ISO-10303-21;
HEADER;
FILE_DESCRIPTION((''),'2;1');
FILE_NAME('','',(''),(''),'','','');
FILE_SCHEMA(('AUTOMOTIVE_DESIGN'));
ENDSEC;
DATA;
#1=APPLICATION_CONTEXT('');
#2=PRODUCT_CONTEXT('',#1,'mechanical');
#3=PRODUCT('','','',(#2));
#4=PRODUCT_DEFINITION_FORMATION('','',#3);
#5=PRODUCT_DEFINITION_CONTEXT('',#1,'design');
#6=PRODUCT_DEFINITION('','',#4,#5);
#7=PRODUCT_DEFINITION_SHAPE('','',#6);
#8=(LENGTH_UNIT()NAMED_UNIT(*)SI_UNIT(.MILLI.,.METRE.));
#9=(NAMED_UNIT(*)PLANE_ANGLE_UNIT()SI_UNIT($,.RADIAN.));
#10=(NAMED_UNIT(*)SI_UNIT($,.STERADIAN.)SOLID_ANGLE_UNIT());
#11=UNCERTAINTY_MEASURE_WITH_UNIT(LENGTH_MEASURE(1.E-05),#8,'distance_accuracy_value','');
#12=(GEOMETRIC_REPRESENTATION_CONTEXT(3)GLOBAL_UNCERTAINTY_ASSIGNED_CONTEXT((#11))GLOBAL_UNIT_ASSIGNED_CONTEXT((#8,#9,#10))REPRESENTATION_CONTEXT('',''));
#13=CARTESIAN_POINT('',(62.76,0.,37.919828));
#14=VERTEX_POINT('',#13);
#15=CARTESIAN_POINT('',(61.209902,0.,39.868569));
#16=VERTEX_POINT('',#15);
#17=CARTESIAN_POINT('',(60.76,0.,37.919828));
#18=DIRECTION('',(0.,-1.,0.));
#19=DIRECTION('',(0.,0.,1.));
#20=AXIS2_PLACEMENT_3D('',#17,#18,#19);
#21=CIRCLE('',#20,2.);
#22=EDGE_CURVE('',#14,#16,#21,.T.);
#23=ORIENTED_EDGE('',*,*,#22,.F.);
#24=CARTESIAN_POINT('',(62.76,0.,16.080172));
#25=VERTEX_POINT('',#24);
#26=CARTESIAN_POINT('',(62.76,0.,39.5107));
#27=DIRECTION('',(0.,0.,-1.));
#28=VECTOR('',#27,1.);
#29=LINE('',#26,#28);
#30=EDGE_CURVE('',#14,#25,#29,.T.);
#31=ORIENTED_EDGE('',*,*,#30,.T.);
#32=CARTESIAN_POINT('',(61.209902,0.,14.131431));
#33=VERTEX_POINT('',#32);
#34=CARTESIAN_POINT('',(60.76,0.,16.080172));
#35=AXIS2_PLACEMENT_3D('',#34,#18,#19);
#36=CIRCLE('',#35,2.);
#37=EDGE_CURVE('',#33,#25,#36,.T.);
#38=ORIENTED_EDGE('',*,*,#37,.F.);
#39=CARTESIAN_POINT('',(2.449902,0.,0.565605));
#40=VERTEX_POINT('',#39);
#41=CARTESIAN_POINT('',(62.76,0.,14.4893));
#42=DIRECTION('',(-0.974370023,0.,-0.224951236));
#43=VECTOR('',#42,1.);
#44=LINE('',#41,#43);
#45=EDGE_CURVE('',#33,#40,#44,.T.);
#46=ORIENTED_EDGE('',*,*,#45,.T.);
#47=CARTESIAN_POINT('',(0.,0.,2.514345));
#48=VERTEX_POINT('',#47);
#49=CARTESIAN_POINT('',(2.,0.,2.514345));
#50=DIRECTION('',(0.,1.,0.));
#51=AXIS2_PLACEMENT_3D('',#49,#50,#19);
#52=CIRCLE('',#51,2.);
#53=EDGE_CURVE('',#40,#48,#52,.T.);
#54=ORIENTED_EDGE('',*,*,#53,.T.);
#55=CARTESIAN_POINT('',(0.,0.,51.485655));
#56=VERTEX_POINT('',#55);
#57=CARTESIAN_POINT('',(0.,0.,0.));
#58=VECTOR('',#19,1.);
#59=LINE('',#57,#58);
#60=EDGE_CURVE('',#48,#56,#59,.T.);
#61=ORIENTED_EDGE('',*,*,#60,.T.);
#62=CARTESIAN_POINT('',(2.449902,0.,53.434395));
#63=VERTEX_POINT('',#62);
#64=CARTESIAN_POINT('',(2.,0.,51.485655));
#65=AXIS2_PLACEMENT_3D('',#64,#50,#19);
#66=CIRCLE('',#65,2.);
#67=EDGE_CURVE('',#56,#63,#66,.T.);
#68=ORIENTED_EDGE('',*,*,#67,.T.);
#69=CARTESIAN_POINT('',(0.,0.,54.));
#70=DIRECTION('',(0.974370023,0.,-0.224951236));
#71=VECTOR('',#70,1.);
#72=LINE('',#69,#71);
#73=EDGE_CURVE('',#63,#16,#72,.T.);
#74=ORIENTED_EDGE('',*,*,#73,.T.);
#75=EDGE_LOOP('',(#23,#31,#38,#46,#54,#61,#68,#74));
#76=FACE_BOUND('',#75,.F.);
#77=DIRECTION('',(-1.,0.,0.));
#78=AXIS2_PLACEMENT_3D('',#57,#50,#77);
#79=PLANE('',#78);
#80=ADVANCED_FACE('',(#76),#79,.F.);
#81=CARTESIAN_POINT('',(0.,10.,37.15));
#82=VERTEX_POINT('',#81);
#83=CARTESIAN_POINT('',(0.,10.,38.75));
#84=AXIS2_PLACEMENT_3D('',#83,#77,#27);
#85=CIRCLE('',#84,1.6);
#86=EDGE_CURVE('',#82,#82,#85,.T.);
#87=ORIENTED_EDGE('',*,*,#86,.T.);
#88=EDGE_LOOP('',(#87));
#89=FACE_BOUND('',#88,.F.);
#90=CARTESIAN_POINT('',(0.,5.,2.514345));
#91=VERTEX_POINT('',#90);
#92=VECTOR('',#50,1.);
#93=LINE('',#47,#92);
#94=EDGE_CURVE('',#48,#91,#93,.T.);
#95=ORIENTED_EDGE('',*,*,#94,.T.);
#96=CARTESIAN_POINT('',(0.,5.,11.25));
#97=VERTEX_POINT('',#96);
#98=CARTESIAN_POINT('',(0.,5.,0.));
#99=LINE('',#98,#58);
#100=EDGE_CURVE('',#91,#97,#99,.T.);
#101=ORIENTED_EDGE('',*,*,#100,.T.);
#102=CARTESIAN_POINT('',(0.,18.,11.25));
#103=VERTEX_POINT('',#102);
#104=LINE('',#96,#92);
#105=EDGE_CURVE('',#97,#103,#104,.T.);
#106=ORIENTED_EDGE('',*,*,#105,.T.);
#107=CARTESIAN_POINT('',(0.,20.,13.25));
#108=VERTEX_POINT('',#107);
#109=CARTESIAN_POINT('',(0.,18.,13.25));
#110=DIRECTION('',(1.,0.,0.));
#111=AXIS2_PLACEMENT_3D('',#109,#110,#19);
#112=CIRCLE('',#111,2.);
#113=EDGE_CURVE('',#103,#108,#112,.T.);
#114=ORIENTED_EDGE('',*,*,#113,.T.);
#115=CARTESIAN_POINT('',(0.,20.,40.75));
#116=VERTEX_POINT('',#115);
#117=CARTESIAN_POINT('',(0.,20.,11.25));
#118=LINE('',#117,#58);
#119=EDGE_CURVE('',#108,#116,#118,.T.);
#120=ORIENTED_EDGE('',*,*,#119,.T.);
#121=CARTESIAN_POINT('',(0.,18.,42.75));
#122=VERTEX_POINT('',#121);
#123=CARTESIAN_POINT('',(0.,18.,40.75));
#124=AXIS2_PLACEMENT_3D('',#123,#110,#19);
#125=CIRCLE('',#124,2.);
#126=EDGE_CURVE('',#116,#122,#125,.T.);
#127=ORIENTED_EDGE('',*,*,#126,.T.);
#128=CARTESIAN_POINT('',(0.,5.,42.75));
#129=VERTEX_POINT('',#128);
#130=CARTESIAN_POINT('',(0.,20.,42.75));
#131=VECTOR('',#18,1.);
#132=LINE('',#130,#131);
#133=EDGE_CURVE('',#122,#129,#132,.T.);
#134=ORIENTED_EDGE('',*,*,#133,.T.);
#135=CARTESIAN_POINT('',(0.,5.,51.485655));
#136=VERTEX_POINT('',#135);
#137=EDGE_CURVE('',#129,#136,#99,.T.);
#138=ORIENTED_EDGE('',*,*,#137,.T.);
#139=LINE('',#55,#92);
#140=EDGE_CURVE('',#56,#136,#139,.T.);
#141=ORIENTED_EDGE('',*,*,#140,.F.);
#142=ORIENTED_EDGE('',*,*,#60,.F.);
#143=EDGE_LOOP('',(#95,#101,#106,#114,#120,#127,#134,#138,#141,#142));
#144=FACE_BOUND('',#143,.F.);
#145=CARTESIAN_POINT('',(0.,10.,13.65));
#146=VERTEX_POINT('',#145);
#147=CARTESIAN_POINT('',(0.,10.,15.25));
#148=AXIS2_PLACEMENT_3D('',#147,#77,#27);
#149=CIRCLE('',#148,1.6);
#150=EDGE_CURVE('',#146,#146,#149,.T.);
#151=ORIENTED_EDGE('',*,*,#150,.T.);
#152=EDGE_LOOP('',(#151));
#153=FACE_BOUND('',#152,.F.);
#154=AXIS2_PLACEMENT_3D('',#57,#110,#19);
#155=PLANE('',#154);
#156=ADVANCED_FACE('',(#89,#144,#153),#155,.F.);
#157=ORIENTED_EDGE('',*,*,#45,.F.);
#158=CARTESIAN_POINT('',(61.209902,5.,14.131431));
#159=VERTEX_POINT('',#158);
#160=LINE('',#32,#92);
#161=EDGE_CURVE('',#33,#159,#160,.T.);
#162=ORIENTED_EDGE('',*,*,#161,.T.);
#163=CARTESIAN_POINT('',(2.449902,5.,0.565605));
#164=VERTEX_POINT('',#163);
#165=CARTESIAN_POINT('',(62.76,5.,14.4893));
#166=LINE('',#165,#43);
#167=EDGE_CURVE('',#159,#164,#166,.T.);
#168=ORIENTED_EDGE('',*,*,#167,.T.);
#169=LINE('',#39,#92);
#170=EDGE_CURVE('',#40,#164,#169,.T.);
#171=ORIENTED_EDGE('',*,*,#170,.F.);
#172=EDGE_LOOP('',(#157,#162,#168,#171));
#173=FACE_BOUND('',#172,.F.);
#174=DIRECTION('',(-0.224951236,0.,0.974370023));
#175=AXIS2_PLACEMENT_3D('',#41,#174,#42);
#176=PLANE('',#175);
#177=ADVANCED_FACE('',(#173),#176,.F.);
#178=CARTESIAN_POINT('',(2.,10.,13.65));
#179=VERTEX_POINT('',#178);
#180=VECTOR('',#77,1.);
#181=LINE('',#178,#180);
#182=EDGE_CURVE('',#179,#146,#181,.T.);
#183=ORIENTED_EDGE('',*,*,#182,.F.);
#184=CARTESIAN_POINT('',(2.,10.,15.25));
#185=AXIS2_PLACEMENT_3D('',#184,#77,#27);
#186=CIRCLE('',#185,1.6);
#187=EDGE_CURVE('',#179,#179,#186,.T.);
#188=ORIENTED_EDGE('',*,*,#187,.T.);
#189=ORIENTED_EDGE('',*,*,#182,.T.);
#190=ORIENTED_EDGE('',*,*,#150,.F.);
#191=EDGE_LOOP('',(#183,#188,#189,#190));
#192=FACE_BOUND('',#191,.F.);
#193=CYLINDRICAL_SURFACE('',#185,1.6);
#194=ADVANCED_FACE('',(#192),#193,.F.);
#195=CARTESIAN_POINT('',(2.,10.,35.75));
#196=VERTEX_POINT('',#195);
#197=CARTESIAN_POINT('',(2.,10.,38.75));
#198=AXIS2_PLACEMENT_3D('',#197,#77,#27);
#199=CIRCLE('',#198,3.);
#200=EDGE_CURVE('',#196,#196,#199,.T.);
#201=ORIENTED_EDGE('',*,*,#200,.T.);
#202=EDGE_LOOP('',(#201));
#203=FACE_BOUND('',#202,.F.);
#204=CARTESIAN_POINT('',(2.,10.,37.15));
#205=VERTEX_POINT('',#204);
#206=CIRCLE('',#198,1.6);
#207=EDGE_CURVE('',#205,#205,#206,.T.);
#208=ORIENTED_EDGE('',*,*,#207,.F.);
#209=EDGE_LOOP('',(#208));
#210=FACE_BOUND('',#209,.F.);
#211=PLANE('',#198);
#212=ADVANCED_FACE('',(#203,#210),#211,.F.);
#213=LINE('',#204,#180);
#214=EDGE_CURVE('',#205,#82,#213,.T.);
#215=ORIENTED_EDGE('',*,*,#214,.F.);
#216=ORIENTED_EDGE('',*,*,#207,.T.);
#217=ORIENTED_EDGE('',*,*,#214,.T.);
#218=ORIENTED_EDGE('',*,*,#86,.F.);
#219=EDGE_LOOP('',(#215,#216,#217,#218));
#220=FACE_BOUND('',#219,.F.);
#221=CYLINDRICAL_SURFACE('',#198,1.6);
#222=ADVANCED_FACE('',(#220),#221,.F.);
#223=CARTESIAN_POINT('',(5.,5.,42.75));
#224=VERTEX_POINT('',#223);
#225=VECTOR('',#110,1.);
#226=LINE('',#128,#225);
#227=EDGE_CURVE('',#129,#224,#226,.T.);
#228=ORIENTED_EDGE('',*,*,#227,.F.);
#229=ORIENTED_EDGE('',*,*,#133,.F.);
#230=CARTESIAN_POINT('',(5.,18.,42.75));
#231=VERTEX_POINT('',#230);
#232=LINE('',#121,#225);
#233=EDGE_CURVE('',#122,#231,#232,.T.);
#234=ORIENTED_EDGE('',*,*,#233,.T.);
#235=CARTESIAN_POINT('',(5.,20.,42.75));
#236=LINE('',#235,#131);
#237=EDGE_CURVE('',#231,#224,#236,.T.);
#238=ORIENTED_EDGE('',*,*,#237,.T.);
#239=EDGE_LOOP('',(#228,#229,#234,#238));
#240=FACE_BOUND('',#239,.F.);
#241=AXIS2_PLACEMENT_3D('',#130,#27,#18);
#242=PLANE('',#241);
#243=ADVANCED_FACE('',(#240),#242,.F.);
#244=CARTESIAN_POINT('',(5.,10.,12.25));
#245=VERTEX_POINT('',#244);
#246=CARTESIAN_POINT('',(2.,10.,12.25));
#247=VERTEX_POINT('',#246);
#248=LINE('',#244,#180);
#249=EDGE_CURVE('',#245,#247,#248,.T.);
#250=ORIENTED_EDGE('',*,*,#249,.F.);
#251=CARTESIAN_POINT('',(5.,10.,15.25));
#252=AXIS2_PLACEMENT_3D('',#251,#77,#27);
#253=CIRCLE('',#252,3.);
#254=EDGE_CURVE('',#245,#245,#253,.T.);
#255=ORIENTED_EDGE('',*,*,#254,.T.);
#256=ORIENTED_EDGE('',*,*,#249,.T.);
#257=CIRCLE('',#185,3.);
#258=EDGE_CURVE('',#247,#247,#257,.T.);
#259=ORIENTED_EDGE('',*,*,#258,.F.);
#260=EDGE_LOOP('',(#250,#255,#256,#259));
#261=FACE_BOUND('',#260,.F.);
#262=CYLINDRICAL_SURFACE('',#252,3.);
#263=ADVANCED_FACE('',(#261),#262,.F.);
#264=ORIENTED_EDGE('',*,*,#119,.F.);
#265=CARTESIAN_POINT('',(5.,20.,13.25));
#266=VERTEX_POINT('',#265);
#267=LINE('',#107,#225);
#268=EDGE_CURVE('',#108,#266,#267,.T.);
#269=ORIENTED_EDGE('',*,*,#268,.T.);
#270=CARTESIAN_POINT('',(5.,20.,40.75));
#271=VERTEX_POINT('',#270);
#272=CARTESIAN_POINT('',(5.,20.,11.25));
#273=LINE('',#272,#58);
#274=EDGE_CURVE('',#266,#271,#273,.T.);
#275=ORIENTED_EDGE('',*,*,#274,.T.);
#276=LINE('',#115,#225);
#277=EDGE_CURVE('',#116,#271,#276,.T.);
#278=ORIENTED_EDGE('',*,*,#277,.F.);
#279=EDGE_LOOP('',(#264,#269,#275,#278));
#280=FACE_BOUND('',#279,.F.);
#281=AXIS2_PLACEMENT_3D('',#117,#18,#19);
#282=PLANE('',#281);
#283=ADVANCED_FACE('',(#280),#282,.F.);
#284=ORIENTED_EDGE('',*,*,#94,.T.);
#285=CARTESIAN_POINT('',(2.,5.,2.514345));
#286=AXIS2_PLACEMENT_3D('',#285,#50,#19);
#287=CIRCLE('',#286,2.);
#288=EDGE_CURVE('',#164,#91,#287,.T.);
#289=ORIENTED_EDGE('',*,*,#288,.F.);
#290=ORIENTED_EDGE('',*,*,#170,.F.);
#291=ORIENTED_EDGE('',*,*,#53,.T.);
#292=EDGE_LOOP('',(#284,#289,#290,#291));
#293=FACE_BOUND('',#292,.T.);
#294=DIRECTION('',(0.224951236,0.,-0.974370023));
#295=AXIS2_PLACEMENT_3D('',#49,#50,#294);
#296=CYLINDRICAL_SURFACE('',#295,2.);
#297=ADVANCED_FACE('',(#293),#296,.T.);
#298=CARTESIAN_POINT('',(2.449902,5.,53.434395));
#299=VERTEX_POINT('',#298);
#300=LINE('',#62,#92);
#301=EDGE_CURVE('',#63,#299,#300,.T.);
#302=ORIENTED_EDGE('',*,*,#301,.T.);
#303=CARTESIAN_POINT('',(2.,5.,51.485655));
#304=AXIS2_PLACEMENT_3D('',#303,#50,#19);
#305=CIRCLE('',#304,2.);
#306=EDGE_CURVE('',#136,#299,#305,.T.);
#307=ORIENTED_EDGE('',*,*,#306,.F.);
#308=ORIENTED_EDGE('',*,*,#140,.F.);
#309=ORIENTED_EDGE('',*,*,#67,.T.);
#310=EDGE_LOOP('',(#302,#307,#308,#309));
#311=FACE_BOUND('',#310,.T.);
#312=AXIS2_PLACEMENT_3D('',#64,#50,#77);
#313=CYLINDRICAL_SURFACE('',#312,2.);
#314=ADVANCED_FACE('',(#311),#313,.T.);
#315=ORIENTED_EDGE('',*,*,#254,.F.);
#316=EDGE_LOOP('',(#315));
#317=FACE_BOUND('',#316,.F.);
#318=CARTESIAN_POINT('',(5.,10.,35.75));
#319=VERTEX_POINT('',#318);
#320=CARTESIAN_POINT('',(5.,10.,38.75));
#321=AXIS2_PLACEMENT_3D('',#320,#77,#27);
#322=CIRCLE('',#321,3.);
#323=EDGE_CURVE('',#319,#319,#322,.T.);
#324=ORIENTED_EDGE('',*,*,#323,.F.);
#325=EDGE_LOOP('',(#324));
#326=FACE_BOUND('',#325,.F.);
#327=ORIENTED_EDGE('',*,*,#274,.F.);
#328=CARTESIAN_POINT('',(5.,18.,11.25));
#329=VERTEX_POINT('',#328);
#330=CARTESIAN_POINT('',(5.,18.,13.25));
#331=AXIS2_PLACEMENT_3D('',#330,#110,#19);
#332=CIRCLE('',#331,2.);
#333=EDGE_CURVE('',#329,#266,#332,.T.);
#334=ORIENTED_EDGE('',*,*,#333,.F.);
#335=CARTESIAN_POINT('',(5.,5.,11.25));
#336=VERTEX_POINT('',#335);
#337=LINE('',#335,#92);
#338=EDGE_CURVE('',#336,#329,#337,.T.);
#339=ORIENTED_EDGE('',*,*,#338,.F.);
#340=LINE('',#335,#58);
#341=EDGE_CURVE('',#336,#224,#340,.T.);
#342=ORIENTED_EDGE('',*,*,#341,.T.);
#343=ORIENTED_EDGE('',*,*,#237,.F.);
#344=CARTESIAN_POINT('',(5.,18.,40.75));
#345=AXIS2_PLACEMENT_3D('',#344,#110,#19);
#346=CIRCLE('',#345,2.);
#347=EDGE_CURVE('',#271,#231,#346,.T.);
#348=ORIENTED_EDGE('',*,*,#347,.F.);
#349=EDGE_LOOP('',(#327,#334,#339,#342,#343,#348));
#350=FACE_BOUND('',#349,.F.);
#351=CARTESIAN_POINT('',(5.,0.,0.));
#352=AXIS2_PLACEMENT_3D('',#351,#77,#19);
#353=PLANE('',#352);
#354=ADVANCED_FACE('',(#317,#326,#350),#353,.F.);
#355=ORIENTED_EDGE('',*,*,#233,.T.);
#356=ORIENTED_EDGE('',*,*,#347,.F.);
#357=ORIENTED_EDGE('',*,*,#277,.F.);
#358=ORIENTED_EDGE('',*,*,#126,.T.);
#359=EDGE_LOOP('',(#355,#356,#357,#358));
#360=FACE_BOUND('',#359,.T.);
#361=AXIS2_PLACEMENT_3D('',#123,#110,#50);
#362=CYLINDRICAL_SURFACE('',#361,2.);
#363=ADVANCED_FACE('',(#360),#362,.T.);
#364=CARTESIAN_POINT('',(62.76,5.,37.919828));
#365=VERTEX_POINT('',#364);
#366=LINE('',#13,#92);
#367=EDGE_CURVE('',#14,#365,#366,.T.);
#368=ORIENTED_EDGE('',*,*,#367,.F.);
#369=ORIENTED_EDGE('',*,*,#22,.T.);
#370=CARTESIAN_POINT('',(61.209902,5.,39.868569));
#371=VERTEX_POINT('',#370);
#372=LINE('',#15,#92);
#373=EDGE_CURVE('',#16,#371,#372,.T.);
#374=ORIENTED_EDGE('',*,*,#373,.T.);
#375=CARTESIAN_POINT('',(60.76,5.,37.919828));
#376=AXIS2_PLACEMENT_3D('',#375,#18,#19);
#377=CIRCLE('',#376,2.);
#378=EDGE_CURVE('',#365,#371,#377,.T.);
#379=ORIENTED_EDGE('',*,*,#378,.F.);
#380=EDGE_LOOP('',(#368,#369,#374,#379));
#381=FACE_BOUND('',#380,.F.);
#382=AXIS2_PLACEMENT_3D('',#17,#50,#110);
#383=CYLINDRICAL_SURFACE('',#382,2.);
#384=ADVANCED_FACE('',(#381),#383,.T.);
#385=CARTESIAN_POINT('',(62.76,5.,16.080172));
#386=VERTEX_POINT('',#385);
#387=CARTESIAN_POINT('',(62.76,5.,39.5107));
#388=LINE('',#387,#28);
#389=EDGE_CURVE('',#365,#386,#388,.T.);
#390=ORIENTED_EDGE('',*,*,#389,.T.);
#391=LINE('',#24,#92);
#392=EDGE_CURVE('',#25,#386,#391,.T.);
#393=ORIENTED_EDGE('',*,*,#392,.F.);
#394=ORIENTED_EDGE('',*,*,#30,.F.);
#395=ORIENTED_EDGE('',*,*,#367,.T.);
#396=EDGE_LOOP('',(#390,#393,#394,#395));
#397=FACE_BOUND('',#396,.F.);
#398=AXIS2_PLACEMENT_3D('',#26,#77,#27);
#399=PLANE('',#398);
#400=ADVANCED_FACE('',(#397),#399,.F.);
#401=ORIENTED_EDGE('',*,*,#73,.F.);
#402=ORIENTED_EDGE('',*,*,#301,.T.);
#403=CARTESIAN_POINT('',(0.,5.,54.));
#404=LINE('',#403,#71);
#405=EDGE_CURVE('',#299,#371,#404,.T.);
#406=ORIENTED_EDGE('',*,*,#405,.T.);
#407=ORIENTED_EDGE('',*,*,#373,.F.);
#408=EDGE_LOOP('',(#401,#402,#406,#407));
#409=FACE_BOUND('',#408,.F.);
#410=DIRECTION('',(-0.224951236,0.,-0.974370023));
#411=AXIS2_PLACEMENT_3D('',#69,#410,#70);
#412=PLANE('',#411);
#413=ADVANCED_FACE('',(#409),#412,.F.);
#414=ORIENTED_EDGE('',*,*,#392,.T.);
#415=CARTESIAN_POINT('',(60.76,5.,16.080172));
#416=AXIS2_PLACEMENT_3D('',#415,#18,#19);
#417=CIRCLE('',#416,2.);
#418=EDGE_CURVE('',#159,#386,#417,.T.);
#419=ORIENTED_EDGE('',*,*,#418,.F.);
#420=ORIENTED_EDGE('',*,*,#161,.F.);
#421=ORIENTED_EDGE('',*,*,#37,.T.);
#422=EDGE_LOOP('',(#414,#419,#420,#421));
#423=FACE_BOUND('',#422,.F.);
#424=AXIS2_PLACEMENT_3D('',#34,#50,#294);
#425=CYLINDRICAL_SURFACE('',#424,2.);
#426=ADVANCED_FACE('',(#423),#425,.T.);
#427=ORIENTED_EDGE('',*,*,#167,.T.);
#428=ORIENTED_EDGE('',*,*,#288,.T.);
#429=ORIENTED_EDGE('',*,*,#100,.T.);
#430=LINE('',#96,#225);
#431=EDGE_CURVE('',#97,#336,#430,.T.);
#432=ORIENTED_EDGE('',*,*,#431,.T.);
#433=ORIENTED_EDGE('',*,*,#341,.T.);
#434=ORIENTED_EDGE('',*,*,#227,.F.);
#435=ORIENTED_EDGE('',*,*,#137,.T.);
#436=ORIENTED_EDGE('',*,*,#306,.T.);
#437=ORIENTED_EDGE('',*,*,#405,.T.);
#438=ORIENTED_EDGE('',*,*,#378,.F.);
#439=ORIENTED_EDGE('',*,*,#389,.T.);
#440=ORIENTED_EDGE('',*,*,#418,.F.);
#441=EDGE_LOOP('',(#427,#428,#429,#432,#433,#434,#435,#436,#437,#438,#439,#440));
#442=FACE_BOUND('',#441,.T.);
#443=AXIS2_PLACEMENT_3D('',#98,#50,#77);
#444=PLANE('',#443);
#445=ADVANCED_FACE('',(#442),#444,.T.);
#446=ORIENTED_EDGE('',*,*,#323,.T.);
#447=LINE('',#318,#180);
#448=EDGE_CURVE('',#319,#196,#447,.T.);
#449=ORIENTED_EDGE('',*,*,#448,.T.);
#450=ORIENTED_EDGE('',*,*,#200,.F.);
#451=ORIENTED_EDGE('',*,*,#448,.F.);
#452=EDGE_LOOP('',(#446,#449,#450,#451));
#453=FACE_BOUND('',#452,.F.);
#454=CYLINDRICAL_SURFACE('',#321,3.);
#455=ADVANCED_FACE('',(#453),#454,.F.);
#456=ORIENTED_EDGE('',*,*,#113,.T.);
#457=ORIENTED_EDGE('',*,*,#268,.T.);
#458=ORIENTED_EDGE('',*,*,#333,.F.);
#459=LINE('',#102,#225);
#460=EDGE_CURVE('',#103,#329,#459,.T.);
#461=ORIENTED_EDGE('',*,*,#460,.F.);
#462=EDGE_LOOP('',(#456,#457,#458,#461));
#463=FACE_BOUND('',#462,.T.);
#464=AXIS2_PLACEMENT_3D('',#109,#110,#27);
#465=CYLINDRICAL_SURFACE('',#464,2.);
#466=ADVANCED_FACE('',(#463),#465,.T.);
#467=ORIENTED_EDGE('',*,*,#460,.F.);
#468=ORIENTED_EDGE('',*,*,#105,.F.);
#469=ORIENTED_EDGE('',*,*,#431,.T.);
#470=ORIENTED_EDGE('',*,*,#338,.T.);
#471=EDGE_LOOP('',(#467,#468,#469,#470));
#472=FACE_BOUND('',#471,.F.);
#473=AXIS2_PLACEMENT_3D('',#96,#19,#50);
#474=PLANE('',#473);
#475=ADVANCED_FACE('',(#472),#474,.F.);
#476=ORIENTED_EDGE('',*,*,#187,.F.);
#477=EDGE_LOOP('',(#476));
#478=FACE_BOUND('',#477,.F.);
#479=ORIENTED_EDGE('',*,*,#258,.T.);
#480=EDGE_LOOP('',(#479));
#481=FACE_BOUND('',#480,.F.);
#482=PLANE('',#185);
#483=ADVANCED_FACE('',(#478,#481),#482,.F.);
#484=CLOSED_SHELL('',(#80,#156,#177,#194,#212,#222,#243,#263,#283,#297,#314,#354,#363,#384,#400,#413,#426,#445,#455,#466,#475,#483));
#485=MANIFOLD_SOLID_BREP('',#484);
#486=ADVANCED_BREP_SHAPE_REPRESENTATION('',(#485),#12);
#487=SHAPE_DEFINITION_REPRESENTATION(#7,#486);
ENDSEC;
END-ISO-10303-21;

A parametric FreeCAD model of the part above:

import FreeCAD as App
import Part
import Sketcher

V = App.Vector
Q = App.Units.Quantity


def edges_at(feature, points):
    """Names of the edges that pass closest to the given points."""
    edges = feature.Shape.Edges
    near = lambda p: min(range(len(edges)), key=lambda i: edges[i].distToShape(Part.Vertex(*p))[0])
    return sorted({f"Edge{near(p) + 1}" for p in points})

doc = App.newDocument("Part")
body = doc.addObject("PartDesign::Body", "Body")

sketch1 = body.newObject("Sketcher::SketchObject", "Sketch")
sketch1.AttachmentSupport = (doc.getObject("XZ_Plane"), [""])
sketch1.MapMode = "FlatFace"
sketch1.addGeometry([
    Part.LineSegment(V(63, 14, 0), V(0, 0, 0)),
    Part.LineSegment(V(0, 0, 0), V(0, 54, 0)),
    Part.LineSegment(V(0, 54, 0), V(63, 40, 0)),
    Part.LineSegment(V(63, 40, 0), V(63, 14, 0)),
], False)
sketch1.addConstraint([
    Sketcher.Constraint("Coincident", 0, 2, 1, 1),
    Sketcher.Constraint("Coincident", 1, 2, 2, 1),
    Sketcher.Constraint("Coincident", 2, 2, 3, 1),
    Sketcher.Constraint("Coincident", 3, 2, 0, 1),
    Sketcher.Constraint("Vertical", 1),
    Sketcher.Constraint("Vertical", 3),
    Sketcher.Constraint("Coincident", 0, 2, -1, 1),
    Sketcher.Constraint("Equal", 0, 2),
    Sketcher.Constraint("DistanceY", 1, 1, 1, 2, Q("54 mm")),
    Sketcher.Constraint("DistanceX", -1, 1, 2, 2, Q("62.76 mm")),
    Sketcher.Constraint("Angle", 0, Q("-167 deg")),
])
pad1 = body.newObject("PartDesign::Pad", "Pad")
pad1.Profile = sketch1
pad1.Length = 5
pad1.Reversed = True

sketch2 = body.newObject("Sketcher::SketchObject", "Sketch001")
sketch2.AttachmentSupport = (doc.getObject("YZ_Plane"), [""])
sketch2.MapMode = "FlatFace"
sketch2.addGeometry([
    Part.LineSegment(V(5, 11, 0), V(5, 43, 0)),
    Part.LineSegment(V(5, 43, 0), V(20, 43, 0)),
    Part.LineSegment(V(20, 43, 0), V(20, 11, 0)),
    Part.LineSegment(V(20, 11, 0), V(5, 11, 0)),
], False)
sketch2.addConstraint([
    Sketcher.Constraint("Coincident", 0, 2, 1, 1),
    Sketcher.Constraint("Coincident", 1, 2, 2, 1),
    Sketcher.Constraint("Coincident", 2, 2, 3, 1),
    Sketcher.Constraint("Coincident", 3, 2, 0, 1),
    Sketcher.Constraint("Vertical", 0),
    Sketcher.Constraint("Horizontal", 1),
    Sketcher.Constraint("Vertical", 2),
    Sketcher.Constraint("Horizontal", 3),
    Sketcher.Constraint("DistanceX", 1, 1, 1, 2, Q("15 mm")),
    Sketcher.Constraint("DistanceY", 0, 1, 0, 2, Q("31.5 mm")),
    Sketcher.Constraint("DistanceY", -1, 1, 2, 2, Q("11.25 mm")),
    Sketcher.Constraint("DistanceX", -1, 1, 0, 2, Q("5 mm")),
])
pad2 = body.newObject("PartDesign::Pad", "Pad001")
pad2.Profile = sketch2
pad2.Length = 5

sketch3 = body.newObject("Sketcher::SketchObject", "Sketch002")
sketch3.AttachmentSupport = (doc.getObject("YZ_Plane"), [""])
sketch3.MapMode = "FlatFace"
sketch3.AttachmentOffset = App.Placement(V(0, 0, 5), App.Rotation())
sketch3.addGeometry([
    Part.Circle(V(10, 38.8, 0), V(0, 0, 1), 1.6),
    Part.Circle(V(10, 15.2, 0), V(0, 0, 1), 1.6),
], False)
sketch3.addConstraint([
    Sketcher.Constraint("Equal", 0, 1),
    Sketcher.Constraint("Vertical", 0, 3, 1, 3),
    Sketcher.Constraint("Diameter", 0, Q("3.2 mm")),
    Sketcher.Constraint("DistanceX", -1, 1, 0, 3, Q("10 mm")),
    Sketcher.Constraint("DistanceY", 1, 3, 0, 3, Q("23.5 mm")),
    Sketcher.Constraint("DistanceY", -1, 1, 0, 3, Q("38.75 mm")),
])
doc.recompute()
hole = body.newObject("PartDesign::Hole", "Hole")
hole.Profile = sketch3
hole.ThreadType = "None"
hole.Diameter = 3.2
hole.DepthType = "Dimension"
hole.Depth = 8
hole.DrillPoint = "Angled"
hole.DrillPointAngle = 118
hole.HoleCutType = "Counterbore"
hole.HoleCutDiameter = 6
hole.HoleCutDepth = 3
doc.recompute()

fillet = body.newObject("PartDesign::Fillet", "Fillet")
fillet.Base = (hole, edges_at(hole, [
    (0, 2.5, 54),
    (0, 2.5, 0),
    (62.76, 2.5, 14.489),
    (62.76, 2.5, 39.511),
    (2.5, 20, 42.75),
    (2.5, 20, 11.25),
]))
fillet.Radius = 2

doc.recompute()
